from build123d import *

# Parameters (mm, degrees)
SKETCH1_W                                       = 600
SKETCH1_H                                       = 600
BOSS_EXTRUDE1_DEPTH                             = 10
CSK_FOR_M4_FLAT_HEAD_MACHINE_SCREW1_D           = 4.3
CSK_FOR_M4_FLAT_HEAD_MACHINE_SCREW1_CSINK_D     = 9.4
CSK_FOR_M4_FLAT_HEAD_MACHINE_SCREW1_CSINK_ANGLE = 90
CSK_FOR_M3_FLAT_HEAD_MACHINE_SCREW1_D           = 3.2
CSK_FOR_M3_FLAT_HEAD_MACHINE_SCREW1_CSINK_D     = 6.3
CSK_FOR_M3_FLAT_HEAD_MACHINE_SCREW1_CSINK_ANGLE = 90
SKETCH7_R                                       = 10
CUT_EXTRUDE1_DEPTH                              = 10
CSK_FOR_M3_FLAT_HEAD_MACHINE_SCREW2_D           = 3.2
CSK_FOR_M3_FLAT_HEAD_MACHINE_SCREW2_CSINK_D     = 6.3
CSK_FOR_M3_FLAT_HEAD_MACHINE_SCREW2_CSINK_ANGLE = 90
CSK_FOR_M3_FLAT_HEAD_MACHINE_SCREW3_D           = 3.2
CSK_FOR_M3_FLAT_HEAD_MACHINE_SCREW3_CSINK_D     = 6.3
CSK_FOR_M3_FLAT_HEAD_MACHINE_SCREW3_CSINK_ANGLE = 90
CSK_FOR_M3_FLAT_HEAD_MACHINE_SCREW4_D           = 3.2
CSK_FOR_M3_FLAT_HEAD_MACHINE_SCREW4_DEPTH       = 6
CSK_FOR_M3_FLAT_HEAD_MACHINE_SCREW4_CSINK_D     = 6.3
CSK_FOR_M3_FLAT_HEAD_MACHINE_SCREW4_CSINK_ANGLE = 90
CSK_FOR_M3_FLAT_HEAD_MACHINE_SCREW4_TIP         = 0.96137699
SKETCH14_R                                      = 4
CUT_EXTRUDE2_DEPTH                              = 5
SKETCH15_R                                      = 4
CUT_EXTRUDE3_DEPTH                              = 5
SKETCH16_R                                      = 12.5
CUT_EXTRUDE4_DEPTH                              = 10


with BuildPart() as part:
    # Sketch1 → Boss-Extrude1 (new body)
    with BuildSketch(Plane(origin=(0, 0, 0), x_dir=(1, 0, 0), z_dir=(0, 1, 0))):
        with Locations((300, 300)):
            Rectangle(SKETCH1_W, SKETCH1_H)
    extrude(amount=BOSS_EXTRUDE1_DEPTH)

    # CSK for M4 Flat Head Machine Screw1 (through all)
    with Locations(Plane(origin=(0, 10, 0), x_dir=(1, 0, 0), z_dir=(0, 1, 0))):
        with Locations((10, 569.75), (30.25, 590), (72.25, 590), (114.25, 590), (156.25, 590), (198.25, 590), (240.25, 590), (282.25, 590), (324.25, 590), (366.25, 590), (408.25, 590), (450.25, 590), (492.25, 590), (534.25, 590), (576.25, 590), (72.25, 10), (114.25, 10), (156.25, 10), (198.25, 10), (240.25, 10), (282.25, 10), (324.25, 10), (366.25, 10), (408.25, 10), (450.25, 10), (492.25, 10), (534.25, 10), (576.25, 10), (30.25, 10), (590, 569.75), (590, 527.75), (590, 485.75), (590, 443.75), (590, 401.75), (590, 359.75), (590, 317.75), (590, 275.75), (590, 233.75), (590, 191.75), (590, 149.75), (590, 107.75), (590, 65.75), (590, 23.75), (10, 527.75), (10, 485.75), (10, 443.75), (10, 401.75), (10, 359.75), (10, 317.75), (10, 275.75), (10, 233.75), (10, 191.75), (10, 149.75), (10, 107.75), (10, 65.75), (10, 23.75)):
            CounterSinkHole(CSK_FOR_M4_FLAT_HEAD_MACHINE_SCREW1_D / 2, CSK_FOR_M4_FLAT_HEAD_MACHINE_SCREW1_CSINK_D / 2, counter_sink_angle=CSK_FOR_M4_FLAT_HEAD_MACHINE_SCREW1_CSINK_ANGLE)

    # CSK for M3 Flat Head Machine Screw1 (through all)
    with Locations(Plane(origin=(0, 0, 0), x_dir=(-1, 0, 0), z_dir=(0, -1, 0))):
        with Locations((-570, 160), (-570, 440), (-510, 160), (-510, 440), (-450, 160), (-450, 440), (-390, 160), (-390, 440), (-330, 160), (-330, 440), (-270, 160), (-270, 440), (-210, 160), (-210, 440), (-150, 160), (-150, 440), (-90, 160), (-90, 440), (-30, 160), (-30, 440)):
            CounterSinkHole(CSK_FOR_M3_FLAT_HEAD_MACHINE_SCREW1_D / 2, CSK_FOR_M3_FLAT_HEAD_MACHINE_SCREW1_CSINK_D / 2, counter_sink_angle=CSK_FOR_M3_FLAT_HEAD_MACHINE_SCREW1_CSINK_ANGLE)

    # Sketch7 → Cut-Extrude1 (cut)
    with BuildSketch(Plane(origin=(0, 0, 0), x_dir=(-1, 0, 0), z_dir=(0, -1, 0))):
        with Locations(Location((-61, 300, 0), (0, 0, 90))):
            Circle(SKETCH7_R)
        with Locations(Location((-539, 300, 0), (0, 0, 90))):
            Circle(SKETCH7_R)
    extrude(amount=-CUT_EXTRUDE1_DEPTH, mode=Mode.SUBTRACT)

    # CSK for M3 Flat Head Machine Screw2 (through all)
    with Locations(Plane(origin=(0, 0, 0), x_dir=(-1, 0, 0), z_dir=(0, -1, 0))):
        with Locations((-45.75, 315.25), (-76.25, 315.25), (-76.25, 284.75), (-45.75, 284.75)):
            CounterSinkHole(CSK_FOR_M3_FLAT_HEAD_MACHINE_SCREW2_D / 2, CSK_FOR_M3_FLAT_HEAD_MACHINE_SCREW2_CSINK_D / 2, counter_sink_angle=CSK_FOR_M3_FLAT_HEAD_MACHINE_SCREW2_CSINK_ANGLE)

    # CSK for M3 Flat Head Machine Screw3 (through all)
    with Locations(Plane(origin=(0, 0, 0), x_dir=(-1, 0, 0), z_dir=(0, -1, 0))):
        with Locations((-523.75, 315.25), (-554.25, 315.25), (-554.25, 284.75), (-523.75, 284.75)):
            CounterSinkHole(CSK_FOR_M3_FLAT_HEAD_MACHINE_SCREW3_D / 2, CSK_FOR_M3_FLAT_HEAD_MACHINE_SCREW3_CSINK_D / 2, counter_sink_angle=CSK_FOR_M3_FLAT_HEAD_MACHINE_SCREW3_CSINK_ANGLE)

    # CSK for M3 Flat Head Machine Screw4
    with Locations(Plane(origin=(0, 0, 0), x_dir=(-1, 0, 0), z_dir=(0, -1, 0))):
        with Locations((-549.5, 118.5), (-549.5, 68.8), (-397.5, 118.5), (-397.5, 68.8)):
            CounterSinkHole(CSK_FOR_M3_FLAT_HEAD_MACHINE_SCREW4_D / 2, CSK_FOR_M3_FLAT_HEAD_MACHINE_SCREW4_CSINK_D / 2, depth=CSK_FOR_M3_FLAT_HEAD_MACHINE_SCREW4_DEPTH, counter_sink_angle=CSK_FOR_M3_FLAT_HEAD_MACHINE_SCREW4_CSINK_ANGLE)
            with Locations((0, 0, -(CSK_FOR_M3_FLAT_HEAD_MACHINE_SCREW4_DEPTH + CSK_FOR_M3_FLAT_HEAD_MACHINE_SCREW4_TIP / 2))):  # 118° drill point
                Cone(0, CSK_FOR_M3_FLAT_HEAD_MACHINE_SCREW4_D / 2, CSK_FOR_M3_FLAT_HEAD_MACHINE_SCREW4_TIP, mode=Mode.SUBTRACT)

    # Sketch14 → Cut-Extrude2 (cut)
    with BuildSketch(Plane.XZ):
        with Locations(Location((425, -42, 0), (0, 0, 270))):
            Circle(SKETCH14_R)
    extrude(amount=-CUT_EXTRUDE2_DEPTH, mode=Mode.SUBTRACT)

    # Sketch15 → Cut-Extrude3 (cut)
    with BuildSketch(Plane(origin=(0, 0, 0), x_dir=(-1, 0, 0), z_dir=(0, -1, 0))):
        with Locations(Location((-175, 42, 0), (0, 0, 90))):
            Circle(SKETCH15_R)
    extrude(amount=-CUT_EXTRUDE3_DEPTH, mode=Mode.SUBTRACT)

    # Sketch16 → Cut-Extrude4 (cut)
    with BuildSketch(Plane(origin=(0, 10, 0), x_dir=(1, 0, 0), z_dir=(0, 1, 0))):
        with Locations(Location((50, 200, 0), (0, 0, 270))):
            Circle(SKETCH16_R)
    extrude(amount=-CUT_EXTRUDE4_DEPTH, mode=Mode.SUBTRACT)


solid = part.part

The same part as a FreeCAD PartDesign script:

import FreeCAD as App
import Part
import Sketcher

V = App.Vector
Q = App.Units.Quantity

doc = App.newDocument("Part")
body = doc.addObject("PartDesign::Body", "Body")

sketch1 = body.newObject("Sketcher::SketchObject", "Sketch")
sketch1.AttachmentSupport = (doc.getObject("XZ_Plane"), [""])
sketch1.MapMode = "FlatFace"
sketch1.addGeometry([
    Part.LineSegment(V(0, -600, 0), V(0, 0, 0)),
    Part.LineSegment(V(0, 0, 0), V(600, 0, 0)),
    Part.LineSegment(V(600, 0, 0), V(600, -600, 0)),
    Part.LineSegment(V(600, -600, 0), V(0, -600, 0)),
], False)
sketch1.addConstraint([
    Sketcher.Constraint("Coincident", 0, 2, 1, 1),
    Sketcher.Constraint("Coincident", 1, 2, 2, 1),
    Sketcher.Constraint("Coincident", 2, 2, 3, 1),
    Sketcher.Constraint("Coincident", 3, 2, 0, 1),
    Sketcher.Constraint("Vertical", 0),
    Sketcher.Constraint("Horizontal", 1),
    Sketcher.Constraint("Vertical", 2),
    Sketcher.Constraint("Horizontal", 3),
    Sketcher.Constraint("Coincident", 0, 2, -1, 1),
    Sketcher.Constraint("Equal", 3, 0),
    Sketcher.Constraint("DistanceX", 1, 1, 1, 2, Q("600 mm")),
])
pad1 = body.newObject("PartDesign::Pad", "Pad")
pad1.Profile = sketch1
pad1.Length = 10
pad1.Reversed = True

sketch2 = body.newObject("Sketcher::SketchObject", "Sketch001")
sketch2.AttachmentSupport = (doc.getObject("XZ_Plane"), [""])
sketch2.MapMode = "FlatFace"
sketch2.AttachmentOffset = App.Placement(V(0, 0, -10), App.Rotation())
sketch2.addGeometry([
    Part.Circle(V(10, -569.8, 0), V(0, 0, 1), 2.1),
    Part.Circle(V(30.2, -590, 0), V(0, 0, 1), 2.1),
    Part.Circle(V(72.2, -590, 0), V(0, 0, 1), 2.1),
    Part.Circle(V(114.2, -590, 0), V(0, 0, 1), 2.1),
    Part.Circle(V(156.2, -590, 0), V(0, 0, 1), 2.1),
    Part.Circle(V(198.2, -590, 0), V(0, 0, 1), 2.1),
    Part.Circle(V(240.2, -590, 0), V(0, 0, 1), 2.1),
    Part.Circle(V(282.2, -590, 0), V(0, 0, 1), 2.1),
    Part.Circle(V(324.2, -590, 0), V(0, 0, 1), 2.1),
    Part.Circle(V(366.2, -590, 0), V(0, 0, 1), 2.1),
    Part.Circle(V(408.2, -590, 0), V(0, 0, 1), 2.1),
    Part.Circle(V(450.2, -590, 0), V(0, 0, 1), 2.1),
    Part.Circle(V(492.2, -590, 0), V(0, 0, 1), 2.1),
    Part.Circle(V(534.2, -590, 0), V(0, 0, 1), 2.1),
    Part.Circle(V(576.2, -590, 0), V(0, 0, 1), 2.1),
    Part.Circle(V(72.2, -10, 0), V(0, 0, 1), 2.1),
    Part.Circle(V(114.2, -10, 0), V(0, 0, 1), 2.1),
    Part.Circle(V(156.2, -10, 0), V(0, 0, 1), 2.1),
    Part.Circle(V(198.2, -10, 0), V(0, 0, 1), 2.1),
    Part.Circle(V(240.2, -10, 0), V(0, 0, 1), 2.1),
    Part.Circle(V(282.2, -10, 0), V(0, 0, 1), 2.1),
    Part.Circle(V(324.2, -10, 0), V(0, 0, 1), 2.1),
    Part.Circle(V(366.2, -10, 0), V(0, 0, 1), 2.1),
    Part.Circle(V(408.2, -10, 0), V(0, 0, 1), 2.1),
    Part.Circle(V(450.2, -10, 0), V(0, 0, 1), 2.1),
    Part.Circle(V(492.2, -10, 0), V(0, 0, 1), 2.1),
    Part.Circle(V(534.2, -10, 0), V(0, 0, 1), 2.1),
    Part.Circle(V(576.2, -10, 0), V(0, 0, 1), 2.1),
    Part.Circle(V(30.2, -10, 0), V(0, 0, 1), 2.1),
    Part.Circle(V(590, -569.8, 0), V(0, 0, 1), 2.1),
    Part.Circle(V(590, -527.8, 0), V(0, 0, 1), 2.1),
    Part.Circle(V(590, -485.8, 0), V(0, 0, 1), 2.1),
    Part.Circle(V(590, -443.8, 0), V(0, 0, 1), 2.1),
    Part.Circle(V(590, -401.8, 0), V(0, 0, 1), 2.1),
    Part.Circle(V(590, -359.8, 0), V(0, 0, 1), 2.1),
    Part.Circle(V(590, -317.8, 0), V(0, 0, 1), 2.1),
    Part.Circle(V(590, -275.8, 0), V(0, 0, 1), 2.1),
    Part.Circle(V(590, -233.8, 0), V(0, 0, 1), 2.1),
    Part.Circle(V(590, -191.8, 0), V(0, 0, 1), 2.1),
    Part.Circle(V(590, -149.8, 0), V(0, 0, 1), 2.1),
    Part.Circle(V(590, -107.8, 0), V(0, 0, 1), 2.1),
    Part.Circle(V(590, -65.8, 0), V(0, 0, 1), 2.1),
    Part.Circle(V(590, -23.8, 0), V(0, 0, 1), 2.1),
    Part.Circle(V(10, -527.8, 0), V(0, 0, 1), 2.1),
    Part.Circle(V(10, -485.8, 0), V(0, 0, 1), 2.1),
    Part.Circle(V(10, -443.8, 0), V(0, 0, 1), 2.1),
    Part.Circle(V(10, -401.8, 0), V(0, 0, 1), 2.1),
    Part.Circle(V(10, -359.8, 0), V(0, 0, 1), 2.1),
    Part.Circle(V(10, -317.8, 0), V(0, 0, 1), 2.1),
    Part.Circle(V(10, -275.8, 0), V(0, 0, 1), 2.1),
    Part.Circle(V(10, -233.8, 0), V(0, 0, 1), 2.1),
    Part.Circle(V(10, -191.8, 0), V(0, 0, 1), 2.1),
    Part.Circle(V(10, -149.8, 0), V(0, 0, 1), 2.1),
    Part.Circle(V(10, -107.8, 0), V(0, 0, 1), 2.1),
    Part.Circle(V(10, -65.8, 0), V(0, 0, 1), 2.1),
    Part.Circle(V(10, -23.8, 0), V(0, 0, 1), 2.1),
], False)
sketch2.addConstraint([
    Sketcher.Constraint("Equal", 0, 1),
    Sketcher.Constraint("Equal", 1, 2),
    Sketcher.Constraint("Equal", 2, 3),
    Sketcher.Constraint("Equal", 3, 4),
    Sketcher.Constraint("Equal", 4, 5),
    Sketcher.Constraint("Equal", 5, 6),
    Sketcher.Constraint("Equal", 6, 7),
    Sketcher.Constraint("Equal", 7, 8),
    Sketcher.Constraint("Equal", 8, 9),
    Sketcher.Constraint("Equal", 9, 10),
    Sketcher.Constraint("Equal", 10, 11),
    Sketcher.Constraint("Equal", 11, 12),
    Sketcher.Constraint("Equal", 12, 13),
    Sketcher.Constraint("Equal", 13, 14),
    Sketcher.Constraint("Equal", 14, 15),
    Sketcher.Constraint("Equal", 15, 16),
    Sketcher.Constraint("Equal", 16, 17),
    Sketcher.Constraint("Equal", 17, 18),
    Sketcher.Constraint("Equal", 18, 19),
    Sketcher.Constraint("Equal", 19, 20),
    Sketcher.Constraint("Equal", 20, 21),
    Sketcher.Constraint("Equal", 21, 22),
    Sketcher.Constraint("Equal", 22, 23),
    Sketcher.Constraint("Equal", 23, 24),
    Sketcher.Constraint("Equal", 24, 25),
    Sketcher.Constraint("Equal", 25, 26),
    Sketcher.Constraint("Equal", 26, 27),
    Sketcher.Constraint("Equal", 27, 28),
    Sketcher.Constraint("Equal", 28, 29),
    Sketcher.Constraint("Equal", 29, 30),
    Sketcher.Constraint("Equal", 30, 31),
    Sketcher.Constraint("Equal", 31, 32),
    Sketcher.Constraint("Equal", 32, 33),
    Sketcher.Constraint("Equal", 33, 34),
    Sketcher.Constraint("Equal", 34, 35),
    Sketcher.Constraint("Equal", 35, 36),
    Sketcher.Constraint("Equal", 36, 37),
    Sketcher.Constraint("Equal", 37, 38),
    Sketcher.Constraint("Equal", 38, 39),
    Sketcher.Constraint("Equal", 39, 40),
    Sketcher.Constraint("Equal", 40, 41),
    Sketcher.Constraint("Equal", 41, 42),
    Sketcher.Constraint("Equal", 42, 43),
    Sketcher.Constraint("Equal", 43, 44),
    Sketcher.Constraint("Equal", 44, 45),
    Sketcher.Constraint("Equal", 45, 46),
    Sketcher.Constraint("Equal", 46, 47),
    Sketcher.Constraint("Equal", 47, 48),
    Sketcher.Constraint("Equal", 48, 49),
    Sketcher.Constraint("Equal", 49, 50),
    Sketcher.Constraint("Equal", 50, 51),
    Sketcher.Constraint("Equal", 51, 52),
    Sketcher.Constraint("Equal", 52, 53),
    Sketcher.Constraint("Equal", 53, 54),
    Sketcher.Constraint("Equal", 54, 55),
    Sketcher.Constraint("Horizontal", 1, 3, 2, 3),
    Sketcher.Constraint("Horizontal", 2, 3, 3, 3),
    Sketcher.Constraint("Horizontal", 3, 3, 4, 3),
    Sketcher.Constraint("Horizontal", 4, 3, 5, 3),
    Sketcher.Constraint("Horizontal", 5, 3, 6, 3),
    Sketcher.Constraint("Horizontal", 6, 3, 7, 3),
    Sketcher.Constraint("Horizontal", 7, 3, 8, 3),
    Sketcher.Constraint("Horizontal", 8, 3, 9, 3),
    Sketcher.Constraint("Horizontal", 9, 3, 10, 3),
    Sketcher.Constraint("Horizontal", 10, 3, 11, 3),
    Sketcher.Constraint("Horizontal", 11, 3, 12, 3),
    Sketcher.Constraint("Horizontal", 12, 3, 13, 3),
    Sketcher.Constraint("Horizontal", 13, 3, 14, 3),
    Sketcher.Constraint("Horizontal", 15, 3, 16, 3),
    Sketcher.Constraint("Horizontal", 16, 3, 17, 3),
    Sketcher.Constraint("Horizontal", 17, 3, 18, 3),
    Sketcher.Constraint("Horizontal", 18, 3, 19, 3),
    Sketcher.Constraint("Horizontal", 19, 3, 20, 3),
    Sketcher.Constraint("Horizontal", 20, 3, 21, 3),
    Sketcher.Constraint("Horizontal", 21, 3, 22, 3),
    Sketcher.Constraint("Horizontal", 22, 3, 23, 3),
    Sketcher.Constraint("Horizontal", 23, 3, 24, 3),
    Sketcher.Constraint("Horizontal", 24, 3, 25, 3),
    Sketcher.Constraint("Horizontal", 25, 3, 26, 3),
    Sketcher.Constraint("Horizontal", 26, 3, 27, 3),
    Sketcher.Constraint("Horizontal", 27, 3, 28, 3),
    Sketcher.Constraint("Horizontal", 0, 3, 29, 3),
    Sketcher.Constraint("Horizontal", 30, 3, 43, 3),
    Sketcher.Constraint("Horizontal", 31, 3, 44, 3),
    Sketcher.Constraint("Horizontal", 32, 3, 45, 3),
    Sketcher.Constraint("Horizontal", 33, 3, 46, 3),
    Sketcher.Constraint("Horizontal", 34, 3, 47, 3),
    Sketcher.Constraint("Horizontal", 35, 3, 48, 3),
    Sketcher.Constraint("Horizontal", 36, 3, 49, 3),
    Sketcher.Constraint("Horizontal", 37, 3, 50, 3),
    Sketcher.Constraint("Horizontal", 38, 3, 51, 3),
    Sketcher.Constraint("Horizontal", 39, 3, 52, 3),
    Sketcher.Constraint("Horizontal", 40, 3, 53, 3),
    Sketcher.Constraint("Horizontal", 41, 3, 54, 3),
    Sketcher.Constraint("Horizontal", 42, 3, 55, 3),
    Sketcher.Constraint("Vertical", 2, 3, 15, 3),
    Sketcher.Constraint("Vertical", 3, 3, 16, 3),
    Sketcher.Constraint("Vertical", 4, 3, 17, 3),
    Sketcher.Constraint("Vertical", 5, 3, 18, 3),
    Sketcher.Constraint("Vertical", 6, 3, 19, 3),
    Sketcher.Constraint("Vertical", 7, 3, 20, 3),
    Sketcher.Constraint("Vertical", 8, 3, 21, 3),
    Sketcher.Constraint("Vertical", 9, 3, 22, 3),
    Sketcher.Constraint("Vertical", 10, 3, 23, 3),
    Sketcher.Constraint("Vertical", 11, 3, 24, 3),
    Sketcher.Constraint("Vertical", 12, 3, 25, 3),
    Sketcher.Constraint("Vertical", 13, 3, 26, 3),
    Sketcher.Constraint("Vertical", 14, 3, 27, 3),
    Sketcher.Constraint("Vertical", 1, 3, 28, 3),
    Sketcher.Constraint("Vertical", 29, 3, 30, 3),
    Sketcher.Constraint("Vertical", 30, 3, 31, 3),
    Sketcher.Constraint("Vertical", 31, 3, 32, 3),
    Sketcher.Constraint("Vertical", 32, 3, 33, 3),
    Sketcher.Constraint("Vertical", 33, 3, 34, 3),
    Sketcher.Constraint("Vertical", 34, 3, 35, 3),
    Sketcher.Constraint("Vertical", 35, 3, 36, 3),
    Sketcher.Constraint("Vertical", 36, 3, 37, 3),
    Sketcher.Constraint("Vertical", 37, 3, 38, 3),
    Sketcher.Constraint("Vertical", 38, 3, 39, 3),
    Sketcher.Constraint("Vertical", 39, 3, 40, 3),
    Sketcher.Constraint("Vertical", 40, 3, 41, 3),
    Sketcher.Constraint("Vertical", 41, 3, 42, 3),
    Sketcher.Constraint("Vertical", 0, 3, 43, 3),
    Sketcher.Constraint("Vertical", 43, 3, 44, 3),
    Sketcher.Constraint("Vertical", 44, 3, 45, 3),
    Sketcher.Constraint("Vertical", 45, 3, 46, 3),
    Sketcher.Constraint("Vertical", 46, 3, 47, 3),
    Sketcher.Constraint("Vertical", 47, 3, 48, 3),
    Sketcher.Constraint("Vertical", 48, 3, 49, 3),
    Sketcher.Constraint("Vertical", 49, 3, 50, 3),
    Sketcher.Constraint("Vertical", 50, 3, 51, 3),
    Sketcher.Constraint("Vertical", 51, 3, 52, 3),
    Sketcher.Constraint("Vertical", 52, 3, 53, 3),
    Sketcher.Constraint("Vertical", 53, 3, 54, 3),
    Sketcher.Constraint("Vertical", 54, 3, 55, 3),
    Sketcher.Constraint("Diameter", 0, Q("4.3 mm")),
    Sketcher.Constraint("DistanceX", -1, 1, 0, 3, Q("10 mm")),
    Sketcher.Constraint("DistanceY", 1, 3, -1, 1, Q("590 mm")),
    Sketcher.Constraint("DistanceY", 15, 3, -1, 1, Q("10 mm")),
    Sketcher.Constraint("DistanceX", -1, 1, 29, 3, Q("590 mm")),
    Sketcher.Constraint("DistanceX", 1, 3, 2, 3, Q("42 mm")),
    Sketcher.Constraint("DistanceX", 2, 3, 3, 3, Q("42 mm")),
    Sketcher.Constraint("DistanceX", 3, 3, 4, 3, Q("42 mm")),
    Sketcher.Constraint("DistanceX", 4, 3, 5, 3, Q("42 mm")),
    Sketcher.Constraint("DistanceX", 5, 3, 6, 3, Q("42 mm")),
    Sketcher.Constraint("DistanceX", 6, 3, 7, 3, Q("42 mm")),
    Sketcher.Constraint("DistanceX", 7, 3, 8, 3, Q("42 mm")),
    Sketcher.Constraint("DistanceX", 8, 3, 9, 3, Q("42 mm")),
    Sketcher.Constraint("DistanceX", 9, 3, 10, 3, Q("42 mm")),
    Sketcher.Constraint("DistanceX", 10, 3, 11, 3, Q("42 mm")),
    Sketcher.Constraint("DistanceX", 11, 3, 12, 3, Q("42 mm")),
    Sketcher.Constraint("DistanceX", 12, 3, 13, 3, Q("42 mm")),
    Sketcher.Constraint("DistanceX", 13, 3, 14, 3, Q("42 mm")),
    Sketcher.Constraint("DistanceY", 29, 3, 30, 3, Q("42 mm")),
    Sketcher.Constraint("DistanceY", 30, 3, 31, 3, Q("42 mm")),
    Sketcher.Constraint("DistanceY", 31, 3, 32, 3, Q("42 mm")),
    Sketcher.Constraint("DistanceY", 32, 3, 33, 3, Q("42 mm")),
    Sketcher.Constraint("DistanceY", 33, 3, 34, 3, Q("42 mm")),
    Sketcher.Constraint("DistanceY", 34, 3, 35, 3, Q("42 mm")),
    Sketcher.Constraint("DistanceY", 35, 3, 36, 3, Q("42 mm")),
    Sketcher.Constraint("DistanceY", 36, 3, 37, 3, Q("42 mm")),
    Sketcher.Constraint("DistanceY", 37, 3, 38, 3, Q("42 mm")),
    Sketcher.Constraint("DistanceY", 38, 3, 39, 3, Q("42 mm")),
    Sketcher.Constraint("DistanceY", 39, 3, 40, 3, Q("42 mm")),
    Sketcher.Constraint("DistanceY", 40, 3, 41, 3, Q("42 mm")),
    Sketcher.Constraint("DistanceY", 41, 3, 42, 3, Q("42 mm")),
    Sketcher.Constraint("DistanceY", 0, 3, -1, 1, Q("569.75 mm")),
    Sketcher.Constraint("DistanceX", -1, 1, 1, 3, Q("30.25 mm")),
])
doc.recompute()
hole = body.newObject("PartDesign::Hole", "Hole")
hole.Profile = sketch2
hole.ThreadType = "None"
hole.Diameter = 4.3
hole.DepthType = "ThroughAll"
hole.HoleCutType = "Countersink"
hole.HoleCutDiameter = 9.4
hole.HoleCutCountersinkAngle = 90
hole.Reversed = True

sketch3 = body.newObject("Sketcher::SketchObject", "Sketch002")
sketch3.AttachmentSupport = (doc.getObject("XZ_Plane"), [""])
sketch3.MapMode = "FlatFace"
sketch3.addGeometry([
    Part.Circle(V(570, -160, 0), V(0, 0, 1), 1.6),
    Part.Circle(V(570, -440, 0), V(0, 0, 1), 1.6),
    Part.Circle(V(510, -160, 0), V(0, 0, 1), 1.6),
    Part.Circle(V(510, -440, 0), V(0, 0, 1), 1.6),
    Part.Circle(V(450, -160, 0), V(0, 0, 1), 1.6),
    Part.Circle(V(450, -440, 0), V(0, 0, 1), 1.6),
    Part.Circle(V(390, -160, 0), V(0, 0, 1), 1.6),
    Part.Circle(V(390, -440, 0), V(0, 0, 1), 1.6),
    Part.Circle(V(330, -160, 0), V(0, 0, 1), 1.6),
    Part.Circle(V(330, -440, 0), V(0, 0, 1), 1.6),
    Part.Circle(V(270, -160, 0), V(0, 0, 1), 1.6),
    Part.Circle(V(270, -440, 0), V(0, 0, 1), 1.6),
    Part.Circle(V(210, -160, 0), V(0, 0, 1), 1.6),
    Part.Circle(V(210, -440, 0), V(0, 0, 1), 1.6),
    Part.Circle(V(150, -160, 0), V(0, 0, 1), 1.6),
    Part.Circle(V(150, -440, 0), V(0, 0, 1), 1.6),
    Part.Circle(V(90, -160, 0), V(0, 0, 1), 1.6),
    Part.Circle(V(90, -440, 0), V(0, 0, 1), 1.6),
    Part.Circle(V(30, -160, 0), V(0, 0, 1), 1.6),
    Part.Circle(V(30, -440, 0), V(0, 0, 1), 1.6),
], False)
sketch3.addConstraint([
    Sketcher.Constraint("Equal", 0, 1),
    Sketcher.Constraint("Equal", 1, 2),
    Sketcher.Constraint("Equal", 2, 3),
    Sketcher.Constraint("Equal", 3, 4),
    Sketcher.Constraint("Equal", 4, 5),
    Sketcher.Constraint("Equal", 5, 6),
    Sketcher.Constraint("Equal", 6, 7),
    Sketcher.Constraint("Equal", 7, 8),
    Sketcher.Constraint("Equal", 8, 9),
    Sketcher.Constraint("Equal", 9, 10),
    Sketcher.Constraint("Equal", 10, 11),
    Sketcher.Constraint("Equal", 11, 12),
    Sketcher.Constraint("Equal", 12, 13),
    Sketcher.Constraint("Equal", 13, 14),
    Sketcher.Constraint("Equal", 14, 15),
    Sketcher.Constraint("Equal", 15, 16),
    Sketcher.Constraint("Equal", 16, 17),
    Sketcher.Constraint("Equal", 17, 18),
    Sketcher.Constraint("Equal", 18, 19),
    Sketcher.Constraint("Horizontal", 0, 3, 2, 3),
    Sketcher.Constraint("Horizontal", 1, 3, 3, 3),
    Sketcher.Constraint("Horizontal", 2, 3, 4, 3),
    Sketcher.Constraint("Horizontal", 3, 3, 5, 3),
    Sketcher.Constraint("Horizontal", 4, 3, 6, 3),
    Sketcher.Constraint("Horizontal", 5, 3, 7, 3),
    Sketcher.Constraint("Horizontal", 6, 3, 8, 3),
    Sketcher.Constraint("Horizontal", 7, 3, 9, 3),
    Sketcher.Constraint("Horizontal", 8, 3, 10, 3),
    Sketcher.Constraint("Horizontal", 9, 3, 11, 3),
    Sketcher.Constraint("Horizontal", 10, 3, 12, 3),
    Sketcher.Constraint("Horizontal", 11, 3, 13, 3),
    Sketcher.Constraint("Horizontal", 12, 3, 14, 3),
    Sketcher.Constraint("Horizontal", 13, 3, 15, 3),
    Sketcher.Constraint("Horizontal", 14, 3, 16, 3),
    Sketcher.Constraint("Horizontal", 15, 3, 17, 3),
    Sketcher.Constraint("Horizontal", 16, 3, 18, 3),
    Sketcher.Constraint("Horizontal", 17, 3, 19, 3),
    Sketcher.Constraint("Vertical", 0, 3, 1, 3),
    Sketcher.Constraint("Vertical", 2, 3, 3, 3),
    Sketcher.Constraint("Vertical", 4, 3, 5, 3),
    Sketcher.Constraint("Vertical", 6, 3, 7, 3),
    Sketcher.Constraint("Vertical", 8, 3, 9, 3),
    Sketcher.Constraint("Vertical", 10, 3, 11, 3),
    Sketcher.Constraint("Vertical", 12, 3, 13, 3),
    Sketcher.Constraint("Vertical", 14, 3, 15, 3),
    Sketcher.Constraint("Vertical", 16, 3, 17, 3),
    Sketcher.Constraint("Vertical", 18, 3, 19, 3),
    Sketcher.Constraint("Diameter", 0, Q("3.2 mm")),
    Sketcher.Constraint("DistanceX", -1, 1, 0, 3, Q("570 mm")),
    Sketcher.Constraint("DistanceY", 0, 3, -1, 1, Q("160 mm")),
    Sketcher.Constraint("DistanceY", 1, 3, -1, 1, Q("440 mm")),
    Sketcher.Constraint("DistanceX", -1, 1, 2, 3, Q("510 mm")),
    Sketcher.Constraint("DistanceX", -1, 1, 4, 3, Q("450 mm")),
    Sketcher.Constraint("DistanceX", -1, 1, 6, 3, Q("390 mm")),
    Sketcher.Constraint("DistanceX", -1, 1, 8, 3, Q("330 mm")),
    Sketcher.Constraint("DistanceX", -1, 1, 10, 3, Q("270 mm")),
    Sketcher.Constraint("DistanceX", -1, 1, 12, 3, Q("210 mm")),
    Sketcher.Constraint("DistanceX", -1, 1, 14, 3, Q("150 mm")),
    Sketcher.Constraint("DistanceX", -1, 1, 16, 3, Q("90 mm")),
    Sketcher.Constraint("DistanceX", -1, 1, 18, 3, Q("30 mm")),
])
doc.recompute()
hole2 = body.newObject("PartDesign::Hole", "Hole001")
hole2.Profile = sketch3
hole2.ThreadType = "None"
hole2.Diameter = 3.2
hole2.DepthType = "ThroughAll"
hole2.HoleCutType = "Countersink"
hole2.HoleCutDiameter = 6.3
hole2.HoleCutCountersinkAngle = 90

sketch4 = body.newObject("Sketcher::SketchObject", "Sketch003")
sketch4.AttachmentSupport = (doc.getObject("XZ_Plane"), [""])
sketch4.MapMode = "FlatFace"
sketch4.addGeometry([
    Part.Circle(V(61, -300, 0), V(0, 0, 1), 10),
    Part.Circle(V(539, -300, 0), V(0, 0, 1), 10),
], False)
sketch4.addConstraint([
    Sketcher.Constraint("Equal", 0, 1),
    Sketcher.Constraint("Horizontal", 0, 3, 1, 3),
    Sketcher.Constraint("Diameter", 0, Q("20 mm")),
    Sketcher.Constraint("DistanceX", -1, 1, 0, 3, Q("61 mm")),
    Sketcher.Constraint("DistanceY", 0, 3, -1, 1, Q("300 mm")),
    Sketcher.Constraint("DistanceX", -1, 1, 1, 3, Q("539 mm")),
])
pocket1 = body.newObject("PartDesign::Pocket", "Pocket")
pocket1.Profile = sketch4
pocket1.Length = 10

sketch5 = body.newObject("Sketcher::SketchObject", "Sketch004")
sketch5.AttachmentSupport = (doc.getObject("XZ_Plane"), [""])
sketch5.MapMode = "FlatFace"
sketch5.addGeometry([
    Part.Circle(V(45.8, -315.2, 0), V(0, 0, 1), 1.6),
    Part.Circle(V(76.2, -315.2, 0), V(0, 0, 1), 1.6),
    Part.Circle(V(76.2, -284.8, 0), V(0, 0, 1), 1.6),
    Part.Circle(V(45.8, -284.8, 0), V(0, 0, 1), 1.6),
], False)
sketch5.addConstraint([
    Sketcher.Constraint("Equal", 0, 1),
    Sketcher.Constraint("Equal", 1, 2),
    Sketcher.Constraint("Equal", 2, 3),
    Sketcher.Constraint("Horizontal", 0, 3, 1, 3),
    Sketcher.Constraint("Horizontal", 2, 3, 3, 3),
    Sketcher.Constraint("Vertical", 1, 3, 2, 3),
    Sketcher.Constraint("Vertical", 0, 3, 3, 3),
    Sketcher.Constraint("Diameter", 0, Q("3.2 mm")),
    Sketcher.Constraint("DistanceX", 0, 3, 1, 3, Q("30.5 mm")),
    Sketcher.Constraint("DistanceY", 1, 3, 2, 3, Q("30.5 mm")),
    Sketcher.Constraint("DistanceX", -1, 1, 0, 3, Q("45.75 mm")),
    Sketcher.Constraint("DistanceY", 0, 3, -1, 1, Q("315.25 mm")),
])
doc.recompute()
hole3 = body.newObject("PartDesign::Hole", "Hole002")
hole3.Profile = sketch5
hole3.ThreadType = "None"
hole3.Diameter = 3.2
hole3.DepthType = "ThroughAll"
hole3.HoleCutType = "Countersink"
hole3.HoleCutDiameter = 6.3
hole3.HoleCutCountersinkAngle = 90

sketch6 = body.newObject("Sketcher::SketchObject", "Sketch005")
sketch6.AttachmentSupport = (doc.getObject("XZ_Plane"), [""])
sketch6.MapMode = "FlatFace"
sketch6.addGeometry([
    Part.Circle(V(523.8, -315.2, 0), V(0, 0, 1), 1.6),
    Part.Circle(V(554.2, -315.2, 0), V(0, 0, 1), 1.6),
    Part.Circle(V(554.2, -284.8, 0), V(0, 0, 1), 1.6),
    Part.Circle(V(523.8, -284.8, 0), V(0, 0, 1), 1.6),
], False)
sketch6.addConstraint([
    Sketcher.Constraint("Equal", 0, 1),
    Sketcher.Constraint("Equal", 1, 2),
    Sketcher.Constraint("Equal", 2, 3),
    Sketcher.Constraint("Horizontal", 0, 3, 1, 3),
    Sketcher.Constraint("Horizontal", 2, 3, 3, 3),
    Sketcher.Constraint("Vertical", 1, 3, 2, 3),
    Sketcher.Constraint("Vertical", 0, 3, 3, 3),
    Sketcher.Constraint("Diameter", 0, Q("3.2 mm")),
    Sketcher.Constraint("DistanceX", 0, 3, 1, 3, Q("30.5 mm")),
    Sketcher.Constraint("DistanceY", 1, 3, 2, 3, Q("30.5 mm")),
    Sketcher.Constraint("DistanceX", -1, 1, 0, 3, Q("523.75 mm")),
    Sketcher.Constraint("DistanceY", 0, 3, -1, 1, Q("315.25 mm")),
])
doc.recompute()
hole4 = body.newObject("PartDesign::Hole", "Hole003")
hole4.Profile = sketch6
hole4.ThreadType = "None"
hole4.Diameter = 3.2
hole4.DepthType = "ThroughAll"
hole4.HoleCutType = "Countersink"
hole4.HoleCutDiameter = 6.3
hole4.HoleCutCountersinkAngle = 90

sketch7 = body.newObject("Sketcher::SketchObject", "Sketch006")
sketch7.AttachmentSupport = (doc.getObject("XZ_Plane"), [""])
sketch7.MapMode = "FlatFace"
sketch7.addGeometry([
    Part.Circle(V(549.5, -118.5, 0), V(0, 0, 1), 1.6),
    Part.Circle(V(549.5, -68.8, 0), V(0, 0, 1), 1.6),
    Part.Circle(V(397.5, -118.5, 0), V(0, 0, 1), 1.6),
    Part.Circle(V(397.5, -68.8, 0), V(0, 0, 1), 1.6),
], False)
sketch7.addConstraint([
    Sketcher.Constraint("Equal", 0, 1),
    Sketcher.Constraint("Equal", 1, 2),
    Sketcher.Constraint("Equal", 2, 3),
    Sketcher.Constraint("Horizontal", 0, 3, 2, 3),
    Sketcher.Constraint("Horizontal", 1, 3, 3, 3),
    Sketcher.Constraint("Vertical", 0, 3, 1, 3),
    Sketcher.Constraint("Vertical", 2, 3, 3, 3),
    Sketcher.Constraint("Diameter", 0, Q("3.2 mm")),
    Sketcher.Constraint("DistanceX", 2, 3, 0, 3, Q("152 mm")),
    Sketcher.Constraint("DistanceX", -1, 1, 0, 3, Q("549.5 mm")),
    Sketcher.Constraint("DistanceY", 0, 3, -1, 1, Q("118.5 mm")),
    Sketcher.Constraint("DistanceY", 1, 3, -1, 1, Q("68.8 mm")),
])
doc.recompute()
hole5 = body.newObject("PartDesign::Hole", "Hole004")
hole5.Profile = sketch7
hole5.ThreadType = "None"
hole5.Diameter = 3.2
hole5.DepthType = "Dimension"
hole5.Depth = 6
hole5.DrillPoint = "Angled"
hole5.DrillPointAngle = 118
hole5.HoleCutType = "Countersink"
hole5.HoleCutDiameter = 6.3
hole5.HoleCutCountersinkAngle = 90

sketch8 = body.newObject("Sketcher::SketchObject", "Sketch007")
sketch8.AttachmentSupport = (doc.getObject("XZ_Plane"), [""])
sketch8.MapMode = "FlatFace"
sketch8.addGeometry(Part.Circle(V(425, -42, 0), V(0, 0, 1), 4), False)
sketch8.addConstraint([
    Sketcher.Constraint("Diameter", 0, Q("8 mm")),
    Sketcher.Constraint("DistanceX", -1, 1, 0, 3, Q("425 mm")),
    Sketcher.Constraint("DistanceY", 0, 3, -1, 1, Q("42 mm")),
])
pocket2 = body.newObject("PartDesign::Pocket", "Pocket001")
pocket2.Profile = sketch8
pocket2.Length = 5

sketch9 = body.newObject("Sketcher::SketchObject", "Sketch008")
sketch9.AttachmentSupport = (doc.getObject("XZ_Plane"), [""])
sketch9.MapMode = "FlatFace"
sketch9.addGeometry(Part.Circle(V(175, -42, 0), V(0, 0, 1), 4), False)
sketch9.addConstraint([
    Sketcher.Constraint("Diameter", 0, Q("8 mm")),
    Sketcher.Constraint("DistanceX", -1, 1, 0, 3, Q("175 mm")),
    Sketcher.Constraint("DistanceY", 0, 3, -1, 1, Q("42 mm")),
])
pocket3 = body.newObject("PartDesign::Pocket", "Pocket002")
pocket3.Profile = sketch9
pocket3.Length = 5

sketch10 = body.newObject("Sketcher::SketchObject", "Sketch009")
sketch10.AttachmentSupport = (doc.getObject("XZ_Plane"), [""])
sketch10.MapMode = "FlatFace"
sketch10.AttachmentOffset = App.Placement(V(0, 0, -10), App.Rotation())
sketch10.addGeometry(Part.Circle(V(50, -200, 0), V(0, 0, 1), 12), False)
sketch10.addConstraint([
    Sketcher.Constraint("Diameter", 0, Q("25 mm")),
    Sketcher.Constraint("DistanceX", -1, 1, 0, 3, Q("50 mm")),
    Sketcher.Constraint("DistanceY", 0, 3, -1, 1, Q("200 mm")),
])
pocket4 = body.newObject("PartDesign::Pocket", "Pocket003")
pocket4.Profile = sketch10
pocket4.Length = 10
pocket4.Reversed = True

doc.recompute()
